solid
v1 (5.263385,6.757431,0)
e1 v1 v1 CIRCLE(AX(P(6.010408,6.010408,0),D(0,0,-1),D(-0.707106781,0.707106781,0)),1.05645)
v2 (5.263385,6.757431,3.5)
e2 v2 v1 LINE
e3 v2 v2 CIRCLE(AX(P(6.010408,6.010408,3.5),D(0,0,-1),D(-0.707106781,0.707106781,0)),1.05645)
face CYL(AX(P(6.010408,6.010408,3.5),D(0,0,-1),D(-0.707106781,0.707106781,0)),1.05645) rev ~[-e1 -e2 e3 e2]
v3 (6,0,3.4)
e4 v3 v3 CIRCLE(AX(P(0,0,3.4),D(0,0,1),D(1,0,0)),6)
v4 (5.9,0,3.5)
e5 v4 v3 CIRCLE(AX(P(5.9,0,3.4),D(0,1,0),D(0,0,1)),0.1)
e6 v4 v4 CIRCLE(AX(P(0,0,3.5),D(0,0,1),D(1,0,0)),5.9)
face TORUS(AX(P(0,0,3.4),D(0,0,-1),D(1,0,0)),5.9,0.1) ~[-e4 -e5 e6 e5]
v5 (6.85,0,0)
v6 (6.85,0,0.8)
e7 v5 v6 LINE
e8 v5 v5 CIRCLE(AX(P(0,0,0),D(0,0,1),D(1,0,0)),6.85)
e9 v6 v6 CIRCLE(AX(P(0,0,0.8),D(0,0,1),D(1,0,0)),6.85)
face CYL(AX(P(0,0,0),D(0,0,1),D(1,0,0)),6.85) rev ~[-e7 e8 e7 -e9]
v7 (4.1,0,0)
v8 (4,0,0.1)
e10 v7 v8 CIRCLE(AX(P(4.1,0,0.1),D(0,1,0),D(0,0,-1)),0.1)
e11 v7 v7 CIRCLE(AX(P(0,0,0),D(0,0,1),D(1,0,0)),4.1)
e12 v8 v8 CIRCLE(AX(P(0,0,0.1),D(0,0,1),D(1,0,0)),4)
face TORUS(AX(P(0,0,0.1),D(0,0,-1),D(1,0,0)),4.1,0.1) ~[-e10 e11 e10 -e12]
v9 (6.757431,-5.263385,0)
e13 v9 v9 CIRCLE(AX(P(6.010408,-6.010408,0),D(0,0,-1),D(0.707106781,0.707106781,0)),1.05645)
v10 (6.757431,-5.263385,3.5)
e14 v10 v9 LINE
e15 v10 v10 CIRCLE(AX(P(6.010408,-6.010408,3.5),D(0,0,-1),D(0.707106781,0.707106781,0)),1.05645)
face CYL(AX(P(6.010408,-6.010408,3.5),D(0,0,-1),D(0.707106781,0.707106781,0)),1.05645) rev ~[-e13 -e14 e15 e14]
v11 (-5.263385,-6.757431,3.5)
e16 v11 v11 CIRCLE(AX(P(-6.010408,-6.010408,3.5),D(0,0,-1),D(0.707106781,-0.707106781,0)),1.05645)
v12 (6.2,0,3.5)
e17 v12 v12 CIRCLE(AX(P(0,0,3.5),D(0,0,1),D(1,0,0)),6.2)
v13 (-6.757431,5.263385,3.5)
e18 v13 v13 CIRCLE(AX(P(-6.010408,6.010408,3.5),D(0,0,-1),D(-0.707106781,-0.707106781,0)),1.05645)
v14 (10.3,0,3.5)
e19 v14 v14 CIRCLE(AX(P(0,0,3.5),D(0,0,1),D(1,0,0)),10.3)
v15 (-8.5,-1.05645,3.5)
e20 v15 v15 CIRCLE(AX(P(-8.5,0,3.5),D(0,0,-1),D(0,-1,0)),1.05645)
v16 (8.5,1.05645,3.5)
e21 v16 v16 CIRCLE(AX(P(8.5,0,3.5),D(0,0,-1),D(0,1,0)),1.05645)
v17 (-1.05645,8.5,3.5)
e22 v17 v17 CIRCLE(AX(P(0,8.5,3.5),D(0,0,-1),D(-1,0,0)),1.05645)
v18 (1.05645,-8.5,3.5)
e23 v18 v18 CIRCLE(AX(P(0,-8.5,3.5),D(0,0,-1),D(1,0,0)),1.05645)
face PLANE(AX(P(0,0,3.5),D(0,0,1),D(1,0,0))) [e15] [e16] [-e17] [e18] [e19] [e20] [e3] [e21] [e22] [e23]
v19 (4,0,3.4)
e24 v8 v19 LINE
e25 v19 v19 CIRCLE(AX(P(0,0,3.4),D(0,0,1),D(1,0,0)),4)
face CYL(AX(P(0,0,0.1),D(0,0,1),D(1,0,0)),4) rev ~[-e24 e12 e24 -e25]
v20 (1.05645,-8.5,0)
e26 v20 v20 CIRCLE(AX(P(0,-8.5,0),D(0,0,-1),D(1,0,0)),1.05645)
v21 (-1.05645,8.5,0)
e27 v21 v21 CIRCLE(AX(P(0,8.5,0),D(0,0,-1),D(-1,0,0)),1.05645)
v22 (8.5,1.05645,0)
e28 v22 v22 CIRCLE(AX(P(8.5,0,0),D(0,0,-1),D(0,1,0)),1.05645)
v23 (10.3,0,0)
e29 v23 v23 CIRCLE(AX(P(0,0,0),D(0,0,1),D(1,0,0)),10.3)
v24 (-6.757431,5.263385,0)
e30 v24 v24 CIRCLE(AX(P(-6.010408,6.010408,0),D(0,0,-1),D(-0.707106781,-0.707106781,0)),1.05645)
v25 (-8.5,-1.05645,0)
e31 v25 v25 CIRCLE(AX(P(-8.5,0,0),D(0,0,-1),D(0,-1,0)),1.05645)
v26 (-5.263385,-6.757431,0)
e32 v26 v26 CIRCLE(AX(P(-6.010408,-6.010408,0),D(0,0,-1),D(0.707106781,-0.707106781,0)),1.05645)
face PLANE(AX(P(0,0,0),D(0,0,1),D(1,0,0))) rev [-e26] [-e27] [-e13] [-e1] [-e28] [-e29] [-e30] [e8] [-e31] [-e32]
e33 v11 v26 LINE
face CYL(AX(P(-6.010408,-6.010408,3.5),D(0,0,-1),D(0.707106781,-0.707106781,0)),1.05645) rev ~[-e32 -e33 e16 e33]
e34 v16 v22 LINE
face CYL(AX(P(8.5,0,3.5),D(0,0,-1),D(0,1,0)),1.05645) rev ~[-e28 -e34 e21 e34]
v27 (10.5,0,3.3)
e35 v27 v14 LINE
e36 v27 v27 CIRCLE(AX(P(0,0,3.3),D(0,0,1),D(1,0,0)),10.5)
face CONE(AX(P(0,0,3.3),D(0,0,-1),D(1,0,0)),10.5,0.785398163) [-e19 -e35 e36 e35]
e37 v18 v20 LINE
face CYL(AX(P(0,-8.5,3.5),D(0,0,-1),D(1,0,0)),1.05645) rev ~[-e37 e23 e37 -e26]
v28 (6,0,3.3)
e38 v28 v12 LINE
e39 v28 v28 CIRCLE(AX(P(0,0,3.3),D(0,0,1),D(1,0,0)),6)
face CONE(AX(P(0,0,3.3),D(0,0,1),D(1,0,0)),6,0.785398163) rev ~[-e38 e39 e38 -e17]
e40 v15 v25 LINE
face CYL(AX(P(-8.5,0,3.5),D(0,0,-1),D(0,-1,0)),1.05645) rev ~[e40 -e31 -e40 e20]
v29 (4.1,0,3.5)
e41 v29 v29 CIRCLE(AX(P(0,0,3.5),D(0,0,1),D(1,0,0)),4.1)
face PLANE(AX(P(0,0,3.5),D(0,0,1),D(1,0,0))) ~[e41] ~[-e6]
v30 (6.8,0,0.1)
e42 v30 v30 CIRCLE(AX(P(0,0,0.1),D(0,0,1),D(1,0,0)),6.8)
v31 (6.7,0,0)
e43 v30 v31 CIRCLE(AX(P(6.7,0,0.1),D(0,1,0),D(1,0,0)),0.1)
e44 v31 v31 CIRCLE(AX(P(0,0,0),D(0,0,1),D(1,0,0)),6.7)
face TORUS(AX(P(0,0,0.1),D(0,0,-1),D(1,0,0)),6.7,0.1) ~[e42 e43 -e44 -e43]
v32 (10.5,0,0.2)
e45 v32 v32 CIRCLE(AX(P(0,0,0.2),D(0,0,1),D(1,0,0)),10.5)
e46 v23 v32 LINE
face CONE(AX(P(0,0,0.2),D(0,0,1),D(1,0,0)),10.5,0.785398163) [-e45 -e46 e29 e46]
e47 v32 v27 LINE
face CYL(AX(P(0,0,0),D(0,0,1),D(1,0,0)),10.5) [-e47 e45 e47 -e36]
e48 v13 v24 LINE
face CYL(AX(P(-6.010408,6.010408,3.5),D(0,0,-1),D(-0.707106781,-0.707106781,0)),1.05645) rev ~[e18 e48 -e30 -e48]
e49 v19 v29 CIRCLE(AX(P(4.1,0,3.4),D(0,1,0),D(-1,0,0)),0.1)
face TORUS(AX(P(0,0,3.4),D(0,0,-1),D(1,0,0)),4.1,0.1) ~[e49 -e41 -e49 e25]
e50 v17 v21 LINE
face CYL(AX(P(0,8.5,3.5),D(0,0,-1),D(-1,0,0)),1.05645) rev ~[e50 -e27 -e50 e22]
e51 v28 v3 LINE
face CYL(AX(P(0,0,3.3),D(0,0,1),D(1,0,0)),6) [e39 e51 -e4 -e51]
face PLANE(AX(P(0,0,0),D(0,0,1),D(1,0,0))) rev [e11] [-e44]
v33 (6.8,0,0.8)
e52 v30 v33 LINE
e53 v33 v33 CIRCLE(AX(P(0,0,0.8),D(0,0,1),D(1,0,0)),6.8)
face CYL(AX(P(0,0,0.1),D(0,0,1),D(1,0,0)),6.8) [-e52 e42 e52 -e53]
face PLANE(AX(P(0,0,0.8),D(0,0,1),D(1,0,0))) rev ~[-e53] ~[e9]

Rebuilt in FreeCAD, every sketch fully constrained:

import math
import FreeCAD as App
import Part
import Sketcher
Q = App.Units.Quantity


def edges_at(feature, points):
    """Names of the edges that pass closest to the given points."""
    edges = feature.Shape.Edges
    near = lambda p: min(range(len(edges)), key=lambda i: edges[i].distToShape(Part.Vertex(*p))[0])
    return sorted({f"Edge{near(p) + 1}" for p in points})

doc = App.newDocument("Part")
body = doc.addObject("PartDesign::Body", "Body")

sketch1 = doc.addObject("Sketcher::SketchObject", "Sketch")
body.addObject(sketch1)
sketch1.AttachmentSupport = (doc.XZ_Plane, [""])
sketch1.MapMode = "FlatFace"
sketch1.addGeometry([
    Part.LineSegment(App.Vector(6.7, 0, 0), App.Vector(4.1, 0, 0)),
    Part.ArcOfCircle(Part.Circle(App.Vector(4.1, 0.1, 0), App.Vector(0, 0, 1), 0.1), math.radians(180), math.radians(270)),
    Part.LineSegment(App.Vector(4, 0.1, 0), App.Vector(4, 3.4, 0)),
    Part.ArcOfCircle(Part.Circle(App.Vector(4.1, 3.4, 0), App.Vector(0, 0, 1), 0.1), math.radians(90), math.radians(180)),
    Part.LineSegment(App.Vector(4.1, 3.5, 0), App.Vector(5.9, 3.5, 0)),
    Part.ArcOfCircle(Part.Circle(App.Vector(5.9, 3.4, 0), App.Vector(0, 0, 1), 0.1), math.radians(0), math.radians(90)),
    Part.LineSegment(App.Vector(6, 3.4, 0), App.Vector(6, 3.3, 0)),
    Part.LineSegment(App.Vector(6, 3.3, 0), App.Vector(6.2, 3.5, 0)),
    Part.LineSegment(App.Vector(6.2, 3.5, 0), App.Vector(10.5, 3.5, 0)),
    Part.LineSegment(App.Vector(10.5, 3.5, 0), App.Vector(10.5, 0, 0)),
    Part.LineSegment(App.Vector(10.5, 0, 0), App.Vector(6.85, 0, 0)),
    Part.LineSegment(App.Vector(6.85, 0, 0), App.Vector(6.85, 0.8, 0)),
    Part.LineSegment(App.Vector(6.85, 0.8, 0), App.Vector(6.8, 0.8, 0)),
    Part.LineSegment(App.Vector(6.8, 0.8, 0), App.Vector(6.8, 0.1, 0)),
    Part.ArcOfCircle(Part.Circle(App.Vector(6.7, 0.1, 0), App.Vector(0, 0, 1), 0.1), math.radians(-90), math.radians(0)),
], False)
sketch1.addConstraint([
    Sketcher.Constraint("Tangent", 0, 2, 1, 2),
    Sketcher.Constraint("Tangent", 1, 1, 2, 1),
    Sketcher.Constraint("Tangent", 2, 2, 3, 2),
    Sketcher.Constraint("Tangent", 3, 1, 4, 1),
    Sketcher.Constraint("Tangent", 4, 2, 5, 2),
    Sketcher.Constraint("Tangent", 5, 1, 6, 1),
    Sketcher.Constraint("Coincident", 6, 2, 7, 1),
    Sketcher.Constraint("Coincident", 7, 2, 8, 1),
    Sketcher.Constraint("Coincident", 8, 2, 9, 1),
    Sketcher.Constraint("Coincident", 9, 2, 10, 1),
    Sketcher.Constraint("Coincident", 10, 2, 11, 1),
    Sketcher.Constraint("Coincident", 11, 2, 12, 1),
    Sketcher.Constraint("Coincident", 12, 2, 13, 1),
    Sketcher.Constraint("Tangent", 13, 2, 14, 2),
    Sketcher.Constraint("Tangent", 14, 1, 0, 1),
    Sketcher.Constraint("Horizontal", 0),
    Sketcher.Constraint("Vertical", 2),
    Sketcher.Constraint("Horizontal", 4),
    Sketcher.Constraint("Vertical", 6),
    Sketcher.Constraint("Horizontal", 8),
    Sketcher.Constraint("Vertical", 9),
    Sketcher.Constraint("Horizontal", 10),
    Sketcher.Constraint("Vertical", 11),
    Sketcher.Constraint("Horizontal", 12),
    Sketcher.Constraint("Vertical", 13),
    Sketcher.Constraint("Equal", 1, 3),
    Sketcher.Constraint("Equal", 3, 5),
    Sketcher.Constraint("Equal", 5, 14),
    Sketcher.Constraint("PointOnObject", 0, 2, -1),
    Sketcher.Constraint("PointOnObject", 9, 2, -1),
    Sketcher.Constraint("Horizontal", 4, 2, 7, 2),
    Sketcher.Constraint("Radius", 1, Q("0.1 mm")),
    Sketcher.Constraint("DistanceY", 6, 2, 6, 1, Q("0.1 mm")),
    Sketcher.Constraint("DistanceY", 9, 2, 9, 1, Q("3.5 mm")),
    Sketcher.Constraint("DistanceY", 11, 1, 11, 2, Q("0.8 mm")),
    Sketcher.Constraint("DistanceX", 5, 3, 14, 3, Q("0.8 mm")),
    Sketcher.Constraint("DistanceX", 5, 1, 7, 2, Q("0.2 mm")),
    Sketcher.Constraint("DistanceX", 0, 2, 0, 1, Q("2.6 mm")),
    Sketcher.Constraint("DistanceX", 8, 1, 8, 2, Q("4.3 mm")),
    Sketcher.Constraint("DistanceX", -1, 1, 1, 1, Q("4 mm")),
    Sketcher.Constraint("DistanceX", 10, 2, 10, 1, Q("3.65 mm")),
])
revolution = doc.addObject("PartDesign::Revolution", "Revolution")
body.addObject(revolution)
revolution.Profile = sketch1
revolution.ReferenceAxis = (sketch1, ["V_Axis"])
revolution.Angle = 360

sketch2 = doc.addObject("Sketcher::SketchObject", "Sketch001")
body.addObject(sketch2)
sketch2.AttachmentSupport = (doc.XY_Plane, [""])
sketch2.MapMode = "FlatFace"
sketch2.AttachmentOffset = App.Placement(App.Vector(0, 0, 3.5), App.Rotation())
sketch2.addGeometry(Part.Circle(App.Vector(-8.5, 0, 0), App.Vector(0, 0, 1), 1.05645), False)
sketch2.addConstraint([
    Sketcher.Constraint("PointOnObject", 0, 3, -1),
    Sketcher.Constraint("Diameter", 0, Q("2.113 mm")),
    Sketcher.Constraint("DistanceX", 0, 3, -1, 1, Q("8.5 mm")),
])
doc.recompute()
hole = doc.addObject("PartDesign::Hole", "Hole")
body.addObject(hole)
hole.Profile = sketch2
hole.ThreadType = "None"
hole.Diameter = 2.1129
hole.DepthType = "ThroughAll"
doc.recompute()

polarpattern = doc.addObject("PartDesign::PolarPattern", "PolarPattern")
body.addObject(polarpattern)
polarpattern.Originals = [hole]
polarpattern.Axis = (doc.Z_Axis, [""])
polarpattern.Angle = 360
polarpattern.Occurrences = 8
body.Tip = polarpattern
doc.recompute()

chamfer = doc.addObject("PartDesign::Chamfer", "Chamfer")
body.addObject(chamfer)
chamfer.Base = (polarpattern, edges_at(polarpattern, [(-10.5, 0, 3.5), (-10.5, 0, 0)]))
chamfer.Size = 0.2

doc.recompute()
